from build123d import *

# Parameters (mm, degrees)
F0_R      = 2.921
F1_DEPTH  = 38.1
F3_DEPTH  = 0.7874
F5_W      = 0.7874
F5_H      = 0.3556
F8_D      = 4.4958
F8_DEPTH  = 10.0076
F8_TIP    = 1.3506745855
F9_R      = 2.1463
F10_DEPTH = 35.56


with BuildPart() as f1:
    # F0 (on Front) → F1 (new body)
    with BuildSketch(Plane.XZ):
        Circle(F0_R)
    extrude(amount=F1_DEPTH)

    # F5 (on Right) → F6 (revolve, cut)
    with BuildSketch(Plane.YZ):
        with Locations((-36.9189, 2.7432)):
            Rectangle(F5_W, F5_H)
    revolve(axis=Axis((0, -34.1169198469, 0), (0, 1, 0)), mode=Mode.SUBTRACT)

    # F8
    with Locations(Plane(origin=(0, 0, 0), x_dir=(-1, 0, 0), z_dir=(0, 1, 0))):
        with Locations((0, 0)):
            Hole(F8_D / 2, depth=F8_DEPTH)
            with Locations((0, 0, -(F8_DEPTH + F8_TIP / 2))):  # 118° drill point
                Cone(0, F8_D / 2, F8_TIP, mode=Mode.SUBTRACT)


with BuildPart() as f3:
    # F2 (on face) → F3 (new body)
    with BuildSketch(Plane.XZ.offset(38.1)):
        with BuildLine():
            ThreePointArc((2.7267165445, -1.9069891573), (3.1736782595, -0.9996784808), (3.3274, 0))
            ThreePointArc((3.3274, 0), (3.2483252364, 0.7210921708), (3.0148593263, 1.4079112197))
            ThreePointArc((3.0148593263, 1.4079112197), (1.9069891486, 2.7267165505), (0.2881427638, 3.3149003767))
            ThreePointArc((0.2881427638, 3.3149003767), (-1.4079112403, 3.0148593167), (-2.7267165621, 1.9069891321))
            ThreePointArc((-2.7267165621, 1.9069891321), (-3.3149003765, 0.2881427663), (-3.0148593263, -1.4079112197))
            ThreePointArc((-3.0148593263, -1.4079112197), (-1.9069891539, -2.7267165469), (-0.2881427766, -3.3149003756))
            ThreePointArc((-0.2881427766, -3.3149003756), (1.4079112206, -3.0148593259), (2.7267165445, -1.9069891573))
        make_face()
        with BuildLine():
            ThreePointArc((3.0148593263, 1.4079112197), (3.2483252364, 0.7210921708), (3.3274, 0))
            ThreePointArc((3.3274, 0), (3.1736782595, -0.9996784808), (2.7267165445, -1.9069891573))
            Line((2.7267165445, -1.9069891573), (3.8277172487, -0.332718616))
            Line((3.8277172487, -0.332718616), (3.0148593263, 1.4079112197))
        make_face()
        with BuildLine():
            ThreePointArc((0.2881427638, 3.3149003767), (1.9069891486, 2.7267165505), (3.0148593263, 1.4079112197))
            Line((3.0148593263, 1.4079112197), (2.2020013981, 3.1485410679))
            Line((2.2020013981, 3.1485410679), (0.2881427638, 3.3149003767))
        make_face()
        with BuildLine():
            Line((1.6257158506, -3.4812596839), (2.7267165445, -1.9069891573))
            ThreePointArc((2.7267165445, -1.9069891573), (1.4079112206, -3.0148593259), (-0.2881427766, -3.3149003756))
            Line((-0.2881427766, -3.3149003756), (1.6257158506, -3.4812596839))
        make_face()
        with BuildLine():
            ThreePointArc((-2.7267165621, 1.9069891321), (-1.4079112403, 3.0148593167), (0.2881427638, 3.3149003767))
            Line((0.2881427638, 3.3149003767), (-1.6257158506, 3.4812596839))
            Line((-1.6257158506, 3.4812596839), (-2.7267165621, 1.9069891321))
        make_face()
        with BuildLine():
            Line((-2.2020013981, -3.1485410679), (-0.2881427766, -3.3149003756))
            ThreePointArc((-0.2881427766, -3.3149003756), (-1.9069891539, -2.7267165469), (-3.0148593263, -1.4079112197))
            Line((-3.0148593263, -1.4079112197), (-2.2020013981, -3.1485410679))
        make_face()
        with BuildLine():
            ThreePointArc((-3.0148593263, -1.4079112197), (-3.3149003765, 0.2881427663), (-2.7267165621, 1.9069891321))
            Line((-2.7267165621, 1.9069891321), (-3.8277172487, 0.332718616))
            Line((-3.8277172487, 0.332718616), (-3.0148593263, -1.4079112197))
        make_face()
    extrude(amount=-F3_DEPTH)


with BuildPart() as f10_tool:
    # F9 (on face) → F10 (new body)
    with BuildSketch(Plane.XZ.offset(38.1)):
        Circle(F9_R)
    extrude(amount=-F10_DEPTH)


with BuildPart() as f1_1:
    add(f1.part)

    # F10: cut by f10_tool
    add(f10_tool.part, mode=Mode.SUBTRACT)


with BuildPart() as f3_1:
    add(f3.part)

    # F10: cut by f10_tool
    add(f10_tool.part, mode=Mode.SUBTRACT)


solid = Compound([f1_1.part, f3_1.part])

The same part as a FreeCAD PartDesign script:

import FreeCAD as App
import Part
import Sketcher
Q = App.Units.Quantity


def add_polygon(sketch, points):
    """Adds a closed chain of lines whose ends are joined by coincident constraints."""
    first, n = sketch.GeometryCount, len(points)
    for a, b in zip(points, points[1:] + points[:1]):
        sketch.addGeometry(Part.LineSegment(App.Vector(*a, 0), App.Vector(*b, 0)), False)
    for i in range(n):
        sketch.addConstraint(Sketcher.Constraint("Coincident", first + i, 2, first + (i + 1) % n, 1))

doc = App.newDocument("Part")
body = doc.addObject("PartDesign::Body", "Body")

# Sketch on XZ plane
sketch1 = body.newObject("Sketcher::SketchObject", "Sketch")
sketch1.AttachmentSupport = (doc.getObject("XZ_Plane"), [""])
sketch1.MapMode = "FlatFace"
sketch1.addGeometry(Part.Circle(App.Vector(0, 0, 0), App.Vector(0, 0, 1), 2.9), False)
sketch1.addConstraint(Sketcher.Constraint("Coincident", 0, 3, -1, 1))
sketch1.addConstraint(Sketcher.Constraint("Diameter", 0, Q("0.23 in")))
pad1 = body.newObject("PartDesign::Pad", "Pad")
pad1.Profile = sketch1
pad1.Length = Q("1.5 in")

# Sketch on YZ plane
sketch2 = body.newObject("Sketcher::SketchObject", "Sketch001")
sketch2.AttachmentSupport = (doc.getObject("YZ_Plane"), [""])
sketch2.MapMode = "FlatFace"
add_polygon(sketch2, [(-37.31, 2.92), (-37.31, 2.57), (-36.53, 2.57), (-36.53, 2.92)])  # lines 0-3
sketch2.addConstraint(Sketcher.Constraint("Vertical", 0))
sketch2.addConstraint(Sketcher.Constraint("Horizontal", 1))
sketch2.addConstraint(Sketcher.Constraint("Vertical", 2))
sketch2.addConstraint(Sketcher.Constraint("Horizontal", 3))
sketch2.addConstraint(Sketcher.Constraint("DistanceX", 1, 1, 1, 2, Q("0.031 in")))
sketch2.addConstraint(Sketcher.Constraint("DistanceY", 0, 2, 0, 1, Q("0.014 in")))
sketch2.addConstraint(Sketcher.Constraint("DistanceX", 0, 2, -1, 1, Q("1.469 in")))
sketch2.addConstraint(Sketcher.Constraint("DistanceY", -1, 1, 0, 2, Q("0.101 in")))
groove = body.newObject("PartDesign::Groove", "Groove")
groove.Profile = sketch2
groove.ReferenceAxis = (sketch2, ["H_Axis"])
groove.Angle = 360

# Sketch on XZ plane
sketch3 = body.newObject("Sketcher::SketchObject", "Sketch002")
sketch3.AttachmentSupport = (doc.getObject("XZ_Plane"), [""])
sketch3.MapMode = "FlatFace"
sketch3.addGeometry(Part.Circle(App.Vector(0, 0, 0), App.Vector(0, 0, 1), 2.2), False)
sketch3.addConstraint(Sketcher.Constraint("Coincident", 0, 3, -1, 1))
sketch3.addConstraint(Sketcher.Constraint("Diameter", 0, Q("0.177 in")))
doc.recompute()
hole = body.newObject("PartDesign::Hole", "Hole")
hole.Profile = sketch3
hole.ThreadType = "None"
hole.Diameter = Q("0.177 in")
hole.DepthType = "Dimension"
hole.Depth = Q("0.394 in")
hole.DrillPoint = "Angled"
hole.DrillPointAngle = 118
hole.Reversed = True
body2 = doc.addObject("PartDesign::Body", "Body001")

# Sketch on XZ plane
sketch4 = body2.newObject("Sketcher::SketchObject", "Sketch003")
sketch4.AttachmentSupport = (doc.getObject("XZ_Plane001"), [""])
sketch4.MapMode = "FlatFace"
sketch4.AttachmentOffset = App.Placement(App.Vector(0, 0, 1.5 * 25.4), App.Rotation())
add_polygon(sketch4, [(-3, -1.4), (-2.2, -3.1), (-0.3, -3.3), (1.6, -3.5), (2.7, -1.9), (3.8, -0.3), (3, 1.4), (2.2, 3.1), (0.3, 3.3), (-1.6, 3.5), (-2.7, 1.9), (-3.8, 0.3)])  # lines 0-11
sketch4.addConstraint(Sketcher.Constraint("Symmetric", 0, 2, 6, 2, -1, 1))
sketch4.addConstraint(Sketcher.Constraint("Symmetric", 1, 2, 7, 2, -1, 1))
sketch4.addConstraint(Sketcher.Constraint("Symmetric", 2, 2, 8, 2, -1, 1))
sketch4.addConstraint(Sketcher.Constraint("Symmetric", 3, 2, 9, 2, -1, 1))
sketch4.addConstraint(Sketcher.Constraint("Symmetric", 4, 2, 10, 2, -1, 1))
sketch4.addConstraint(Sketcher.Constraint("Symmetric", 5, 2, 11, 2, -1, 1))
sketch4.addConstraint(Sketcher.Constraint("Parallel", 1, 2))
sketch4.addConstraint(Sketcher.Constraint("Parallel", 3, 4))
sketch4.addConstraint(Sketcher.Constraint("Parallel", 0, 5))
sketch4.addConstraint(Sketcher.Constraint("Equal", 0, 1))
sketch4.addConstraint(Sketcher.Constraint("Equal", 1, 2))
sketch4.addConstraint(Sketcher.Constraint("Equal", 2, 3))
sketch4.addConstraint(Sketcher.Constraint("Equal", 3, 4))
sketch4.addConstraint(Sketcher.Constraint("Equal", 4, 5))
sketch4.addConstraint(Sketcher.Constraint("DistanceX", 8, 2, 5, 2, Q("0.1826998 in")))
sketch4.addConstraint(Sketcher.Constraint("DistanceX", 0, 2, -1, 1, Q("2.202001 mm")))
sketch4.addConstraint(Sketcher.Constraint("DistanceY", 1, 2, -1, 1, Q("3.3149 mm")))
sketch4.addConstraint(Sketcher.Constraint("DistanceX", 2, 2, 3, 2, Q("1.101001 mm")))
pad2 = body2.newObject("PartDesign::Pad", "Pad001")
pad2.Profile = sketch4
pad2.Length = Q("0.031 in")
pad2.Reversed = True
body3 = doc.addObject("PartDesign::Body", "Body002")

# Sketch on XZ plane
sketch5 = body3.newObject("Sketcher::SketchObject", "Sketch004")
sketch5.AttachmentSupport = (doc.getObject("XZ_Plane002"), [""])
sketch5.MapMode = "FlatFace"
sketch5.AttachmentOffset = App.Placement(App.Vector(0, 0, 1.5 * 25.4), App.Rotation())
sketch5.addGeometry(Part.Circle(App.Vector(0, 0, 0), App.Vector(0, 0, 1), 2.1), False)
sketch5.addConstraint(Sketcher.Constraint("Coincident", 0, 3, -1, 1))
sketch5.addConstraint(Sketcher.Constraint("Diameter", 0, Q("0.169 in")))
pad3 = body3.newObject("PartDesign::Pad", "Pad002")
pad3.Profile = sketch5
pad3.Length = Q("1.4 in")
pad3.Reversed = True
doc.recompute()

body4 = doc.addObject("PartDesign::Body", "Body003")
body4.BaseFeature = body3
boolean = body.newObject("PartDesign::Boolean", "Boolean")
boolean.Type = "Cut"
boolean.addObjects([body4])
doc.recompute()

boolean2 = body2.newObject("PartDesign::Boolean", "Boolean001")
boolean2.Type = "Cut"
boolean2.addObjects([body3])

doc.recompute()
